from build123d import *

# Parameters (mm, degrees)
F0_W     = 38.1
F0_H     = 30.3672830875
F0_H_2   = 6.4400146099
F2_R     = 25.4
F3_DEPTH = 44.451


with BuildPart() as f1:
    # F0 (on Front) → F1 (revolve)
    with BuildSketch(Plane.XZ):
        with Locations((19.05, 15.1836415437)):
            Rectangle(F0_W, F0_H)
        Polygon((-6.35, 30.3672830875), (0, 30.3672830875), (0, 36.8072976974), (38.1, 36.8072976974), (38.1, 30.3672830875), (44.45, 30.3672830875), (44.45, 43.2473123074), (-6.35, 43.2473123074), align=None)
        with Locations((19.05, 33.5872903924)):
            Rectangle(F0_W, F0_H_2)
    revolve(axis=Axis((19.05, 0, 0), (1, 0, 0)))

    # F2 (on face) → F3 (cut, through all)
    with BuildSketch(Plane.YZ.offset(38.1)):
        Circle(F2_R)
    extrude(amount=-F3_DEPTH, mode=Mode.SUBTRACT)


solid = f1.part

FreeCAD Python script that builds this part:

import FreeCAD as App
import Part
import Sketcher
from FreeCAD import Vector
Q = App.Units.Quantity

doc = App.newDocument("Part")
params = doc.addObject("Spreadsheet::Sheet", "Params")
for row, (alias, value) in enumerate([
    ("sketch1_width", "2 in"),
    ("sketch1_width2", "1.5 in"),
    ("revolution_angle", "360 deg"),
    ("sketch2_diameter", "2 in"),
], start=1):
    params.set(f"A{row}", alias)
    params.set(f"B{row}", "=" + value)
    params.setAlias(f"B{row}", alias)

body = doc.addObject("PartDesign::Body", "Body")

# Sketch on XZ plane
sketch1 = body.newObject("Sketcher::SketchObject", "Sketch")
sketch1.AttachmentSupport = (doc.getObject("XZ_Plane"), [""])
sketch1.MapMode = "FlatFace"
sketch1.addGeometry(Part.LineSegment(Vector(0, 30, 0), Vector(0, 0, 0)), False)
sketch1.addGeometry(Part.LineSegment(Vector(0, 0, 0), Vector(38, 0, 0)), False)
sketch1.addGeometry(Part.LineSegment(Vector(38, 0, 0), Vector(38, 30, 0)), False)
sketch1.addGeometry(Part.LineSegment(Vector(38, 30, 0), Vector(44, 30, 0)), False)
sketch1.addGeometry(Part.LineSegment(Vector(44, 30, 0), Vector(44, 43, 0)), False)
sketch1.addGeometry(Part.LineSegment(Vector(44, 43, 0), Vector(-6, 43, 0)), False)
sketch1.addGeometry(Part.LineSegment(Vector(-6, 43, 0), Vector(-6, 30, 0)), False)
sketch1.addGeometry(Part.LineSegment(Vector(-6, 30, 0), Vector(0, 30, 0)), False)
sketch1.addConstraint(Sketcher.Constraint("Coincident", 0, 2, 1, 1))
sketch1.addConstraint(Sketcher.Constraint("Coincident", 1, 2, 2, 1))
sketch1.addConstraint(Sketcher.Constraint("Coincident", 2, 2, 3, 1))
sketch1.addConstraint(Sketcher.Constraint("Coincident", 3, 2, 4, 1))
sketch1.addConstraint(Sketcher.Constraint("Coincident", 4, 2, 5, 1))
sketch1.addConstraint(Sketcher.Constraint("Coincident", 5, 2, 6, 1))
sketch1.addConstraint(Sketcher.Constraint("Coincident", 6, 2, 7, 1))
sketch1.addConstraint(Sketcher.Constraint("Coincident", 7, 2, 0, 1))
sketch1.addConstraint(Sketcher.Constraint("Vertical", 0))
sketch1.addConstraint(Sketcher.Constraint("Horizontal", 1))
sketch1.addConstraint(Sketcher.Constraint("Vertical", 2))
sketch1.addConstraint(Sketcher.Constraint("Horizontal", 3))
sketch1.addConstraint(Sketcher.Constraint("Vertical", 4))
sketch1.addConstraint(Sketcher.Constraint("Horizontal", 5))
sketch1.addConstraint(Sketcher.Constraint("Vertical", 6))
sketch1.addConstraint(Sketcher.Constraint("Horizontal", 7))
sketch1.addConstraint(Sketcher.Constraint("Coincident", 0, 2, -1, 1))
sketch1.addConstraint(Sketcher.Constraint("Horizontal", 3, 2, 6, 2))
sketch1.addConstraint(Sketcher.Constraint("Equal", 3, 7))
sketch1.addConstraint(Sketcher.Constraint("DistanceX", 5, 2, 5, 1, Q("2 in")))
sketch1.addConstraint(Sketcher.Constraint("DistanceX", 1, 1, 1, 2, Q("1.5 in")))
sketch1.addConstraint(Sketcher.Constraint("DistanceY", 4, 1, 4, 2, 12.880029))
sketch1.addConstraint(Sketcher.Constraint("DistanceY", 0, 2, 0, 1, 30.367283))
sketch1.setExpression("Constraints[19]", "Params.sketch1_width")
sketch1.setExpression("Constraints[20]", "Params.sketch1_width2")
revolution = body.newObject("PartDesign::Revolution", "Revolution")
revolution.Profile = sketch1
revolution.ReferenceAxis = (sketch1, ["H_Axis"])
revolution.setExpression("Angle", "Params.revolution_angle")

# Sketch on YZ plane
sketch2 = body.newObject("Sketcher::SketchObject", "Sketch001")
sketch2.AttachmentSupport = (doc.getObject("YZ_Plane"), [""])
sketch2.MapMode = "FlatFace"
sketch2.AttachmentOffset = App.Placement(Vector(0, 0, 1.5 * 25.4), App.Rotation())
sketch2.addGeometry(Part.Circle(Vector(0, 0, 0), Vector(0, 0, 1), 25), False)
sketch2.addConstraint(Sketcher.Constraint("Coincident", 0, 3, -1, 1))
sketch2.addConstraint(Sketcher.Constraint("Diameter", 0, Q("2 in")))
sketch2.setExpression("Constraints[1]", "Params.sketch2_diameter")
pocket1 = body.newObject("PartDesign::Pocket", "Pocket")
pocket1.Profile = sketch2
pocket1.Type = "ThroughAll"

doc.recompute()
